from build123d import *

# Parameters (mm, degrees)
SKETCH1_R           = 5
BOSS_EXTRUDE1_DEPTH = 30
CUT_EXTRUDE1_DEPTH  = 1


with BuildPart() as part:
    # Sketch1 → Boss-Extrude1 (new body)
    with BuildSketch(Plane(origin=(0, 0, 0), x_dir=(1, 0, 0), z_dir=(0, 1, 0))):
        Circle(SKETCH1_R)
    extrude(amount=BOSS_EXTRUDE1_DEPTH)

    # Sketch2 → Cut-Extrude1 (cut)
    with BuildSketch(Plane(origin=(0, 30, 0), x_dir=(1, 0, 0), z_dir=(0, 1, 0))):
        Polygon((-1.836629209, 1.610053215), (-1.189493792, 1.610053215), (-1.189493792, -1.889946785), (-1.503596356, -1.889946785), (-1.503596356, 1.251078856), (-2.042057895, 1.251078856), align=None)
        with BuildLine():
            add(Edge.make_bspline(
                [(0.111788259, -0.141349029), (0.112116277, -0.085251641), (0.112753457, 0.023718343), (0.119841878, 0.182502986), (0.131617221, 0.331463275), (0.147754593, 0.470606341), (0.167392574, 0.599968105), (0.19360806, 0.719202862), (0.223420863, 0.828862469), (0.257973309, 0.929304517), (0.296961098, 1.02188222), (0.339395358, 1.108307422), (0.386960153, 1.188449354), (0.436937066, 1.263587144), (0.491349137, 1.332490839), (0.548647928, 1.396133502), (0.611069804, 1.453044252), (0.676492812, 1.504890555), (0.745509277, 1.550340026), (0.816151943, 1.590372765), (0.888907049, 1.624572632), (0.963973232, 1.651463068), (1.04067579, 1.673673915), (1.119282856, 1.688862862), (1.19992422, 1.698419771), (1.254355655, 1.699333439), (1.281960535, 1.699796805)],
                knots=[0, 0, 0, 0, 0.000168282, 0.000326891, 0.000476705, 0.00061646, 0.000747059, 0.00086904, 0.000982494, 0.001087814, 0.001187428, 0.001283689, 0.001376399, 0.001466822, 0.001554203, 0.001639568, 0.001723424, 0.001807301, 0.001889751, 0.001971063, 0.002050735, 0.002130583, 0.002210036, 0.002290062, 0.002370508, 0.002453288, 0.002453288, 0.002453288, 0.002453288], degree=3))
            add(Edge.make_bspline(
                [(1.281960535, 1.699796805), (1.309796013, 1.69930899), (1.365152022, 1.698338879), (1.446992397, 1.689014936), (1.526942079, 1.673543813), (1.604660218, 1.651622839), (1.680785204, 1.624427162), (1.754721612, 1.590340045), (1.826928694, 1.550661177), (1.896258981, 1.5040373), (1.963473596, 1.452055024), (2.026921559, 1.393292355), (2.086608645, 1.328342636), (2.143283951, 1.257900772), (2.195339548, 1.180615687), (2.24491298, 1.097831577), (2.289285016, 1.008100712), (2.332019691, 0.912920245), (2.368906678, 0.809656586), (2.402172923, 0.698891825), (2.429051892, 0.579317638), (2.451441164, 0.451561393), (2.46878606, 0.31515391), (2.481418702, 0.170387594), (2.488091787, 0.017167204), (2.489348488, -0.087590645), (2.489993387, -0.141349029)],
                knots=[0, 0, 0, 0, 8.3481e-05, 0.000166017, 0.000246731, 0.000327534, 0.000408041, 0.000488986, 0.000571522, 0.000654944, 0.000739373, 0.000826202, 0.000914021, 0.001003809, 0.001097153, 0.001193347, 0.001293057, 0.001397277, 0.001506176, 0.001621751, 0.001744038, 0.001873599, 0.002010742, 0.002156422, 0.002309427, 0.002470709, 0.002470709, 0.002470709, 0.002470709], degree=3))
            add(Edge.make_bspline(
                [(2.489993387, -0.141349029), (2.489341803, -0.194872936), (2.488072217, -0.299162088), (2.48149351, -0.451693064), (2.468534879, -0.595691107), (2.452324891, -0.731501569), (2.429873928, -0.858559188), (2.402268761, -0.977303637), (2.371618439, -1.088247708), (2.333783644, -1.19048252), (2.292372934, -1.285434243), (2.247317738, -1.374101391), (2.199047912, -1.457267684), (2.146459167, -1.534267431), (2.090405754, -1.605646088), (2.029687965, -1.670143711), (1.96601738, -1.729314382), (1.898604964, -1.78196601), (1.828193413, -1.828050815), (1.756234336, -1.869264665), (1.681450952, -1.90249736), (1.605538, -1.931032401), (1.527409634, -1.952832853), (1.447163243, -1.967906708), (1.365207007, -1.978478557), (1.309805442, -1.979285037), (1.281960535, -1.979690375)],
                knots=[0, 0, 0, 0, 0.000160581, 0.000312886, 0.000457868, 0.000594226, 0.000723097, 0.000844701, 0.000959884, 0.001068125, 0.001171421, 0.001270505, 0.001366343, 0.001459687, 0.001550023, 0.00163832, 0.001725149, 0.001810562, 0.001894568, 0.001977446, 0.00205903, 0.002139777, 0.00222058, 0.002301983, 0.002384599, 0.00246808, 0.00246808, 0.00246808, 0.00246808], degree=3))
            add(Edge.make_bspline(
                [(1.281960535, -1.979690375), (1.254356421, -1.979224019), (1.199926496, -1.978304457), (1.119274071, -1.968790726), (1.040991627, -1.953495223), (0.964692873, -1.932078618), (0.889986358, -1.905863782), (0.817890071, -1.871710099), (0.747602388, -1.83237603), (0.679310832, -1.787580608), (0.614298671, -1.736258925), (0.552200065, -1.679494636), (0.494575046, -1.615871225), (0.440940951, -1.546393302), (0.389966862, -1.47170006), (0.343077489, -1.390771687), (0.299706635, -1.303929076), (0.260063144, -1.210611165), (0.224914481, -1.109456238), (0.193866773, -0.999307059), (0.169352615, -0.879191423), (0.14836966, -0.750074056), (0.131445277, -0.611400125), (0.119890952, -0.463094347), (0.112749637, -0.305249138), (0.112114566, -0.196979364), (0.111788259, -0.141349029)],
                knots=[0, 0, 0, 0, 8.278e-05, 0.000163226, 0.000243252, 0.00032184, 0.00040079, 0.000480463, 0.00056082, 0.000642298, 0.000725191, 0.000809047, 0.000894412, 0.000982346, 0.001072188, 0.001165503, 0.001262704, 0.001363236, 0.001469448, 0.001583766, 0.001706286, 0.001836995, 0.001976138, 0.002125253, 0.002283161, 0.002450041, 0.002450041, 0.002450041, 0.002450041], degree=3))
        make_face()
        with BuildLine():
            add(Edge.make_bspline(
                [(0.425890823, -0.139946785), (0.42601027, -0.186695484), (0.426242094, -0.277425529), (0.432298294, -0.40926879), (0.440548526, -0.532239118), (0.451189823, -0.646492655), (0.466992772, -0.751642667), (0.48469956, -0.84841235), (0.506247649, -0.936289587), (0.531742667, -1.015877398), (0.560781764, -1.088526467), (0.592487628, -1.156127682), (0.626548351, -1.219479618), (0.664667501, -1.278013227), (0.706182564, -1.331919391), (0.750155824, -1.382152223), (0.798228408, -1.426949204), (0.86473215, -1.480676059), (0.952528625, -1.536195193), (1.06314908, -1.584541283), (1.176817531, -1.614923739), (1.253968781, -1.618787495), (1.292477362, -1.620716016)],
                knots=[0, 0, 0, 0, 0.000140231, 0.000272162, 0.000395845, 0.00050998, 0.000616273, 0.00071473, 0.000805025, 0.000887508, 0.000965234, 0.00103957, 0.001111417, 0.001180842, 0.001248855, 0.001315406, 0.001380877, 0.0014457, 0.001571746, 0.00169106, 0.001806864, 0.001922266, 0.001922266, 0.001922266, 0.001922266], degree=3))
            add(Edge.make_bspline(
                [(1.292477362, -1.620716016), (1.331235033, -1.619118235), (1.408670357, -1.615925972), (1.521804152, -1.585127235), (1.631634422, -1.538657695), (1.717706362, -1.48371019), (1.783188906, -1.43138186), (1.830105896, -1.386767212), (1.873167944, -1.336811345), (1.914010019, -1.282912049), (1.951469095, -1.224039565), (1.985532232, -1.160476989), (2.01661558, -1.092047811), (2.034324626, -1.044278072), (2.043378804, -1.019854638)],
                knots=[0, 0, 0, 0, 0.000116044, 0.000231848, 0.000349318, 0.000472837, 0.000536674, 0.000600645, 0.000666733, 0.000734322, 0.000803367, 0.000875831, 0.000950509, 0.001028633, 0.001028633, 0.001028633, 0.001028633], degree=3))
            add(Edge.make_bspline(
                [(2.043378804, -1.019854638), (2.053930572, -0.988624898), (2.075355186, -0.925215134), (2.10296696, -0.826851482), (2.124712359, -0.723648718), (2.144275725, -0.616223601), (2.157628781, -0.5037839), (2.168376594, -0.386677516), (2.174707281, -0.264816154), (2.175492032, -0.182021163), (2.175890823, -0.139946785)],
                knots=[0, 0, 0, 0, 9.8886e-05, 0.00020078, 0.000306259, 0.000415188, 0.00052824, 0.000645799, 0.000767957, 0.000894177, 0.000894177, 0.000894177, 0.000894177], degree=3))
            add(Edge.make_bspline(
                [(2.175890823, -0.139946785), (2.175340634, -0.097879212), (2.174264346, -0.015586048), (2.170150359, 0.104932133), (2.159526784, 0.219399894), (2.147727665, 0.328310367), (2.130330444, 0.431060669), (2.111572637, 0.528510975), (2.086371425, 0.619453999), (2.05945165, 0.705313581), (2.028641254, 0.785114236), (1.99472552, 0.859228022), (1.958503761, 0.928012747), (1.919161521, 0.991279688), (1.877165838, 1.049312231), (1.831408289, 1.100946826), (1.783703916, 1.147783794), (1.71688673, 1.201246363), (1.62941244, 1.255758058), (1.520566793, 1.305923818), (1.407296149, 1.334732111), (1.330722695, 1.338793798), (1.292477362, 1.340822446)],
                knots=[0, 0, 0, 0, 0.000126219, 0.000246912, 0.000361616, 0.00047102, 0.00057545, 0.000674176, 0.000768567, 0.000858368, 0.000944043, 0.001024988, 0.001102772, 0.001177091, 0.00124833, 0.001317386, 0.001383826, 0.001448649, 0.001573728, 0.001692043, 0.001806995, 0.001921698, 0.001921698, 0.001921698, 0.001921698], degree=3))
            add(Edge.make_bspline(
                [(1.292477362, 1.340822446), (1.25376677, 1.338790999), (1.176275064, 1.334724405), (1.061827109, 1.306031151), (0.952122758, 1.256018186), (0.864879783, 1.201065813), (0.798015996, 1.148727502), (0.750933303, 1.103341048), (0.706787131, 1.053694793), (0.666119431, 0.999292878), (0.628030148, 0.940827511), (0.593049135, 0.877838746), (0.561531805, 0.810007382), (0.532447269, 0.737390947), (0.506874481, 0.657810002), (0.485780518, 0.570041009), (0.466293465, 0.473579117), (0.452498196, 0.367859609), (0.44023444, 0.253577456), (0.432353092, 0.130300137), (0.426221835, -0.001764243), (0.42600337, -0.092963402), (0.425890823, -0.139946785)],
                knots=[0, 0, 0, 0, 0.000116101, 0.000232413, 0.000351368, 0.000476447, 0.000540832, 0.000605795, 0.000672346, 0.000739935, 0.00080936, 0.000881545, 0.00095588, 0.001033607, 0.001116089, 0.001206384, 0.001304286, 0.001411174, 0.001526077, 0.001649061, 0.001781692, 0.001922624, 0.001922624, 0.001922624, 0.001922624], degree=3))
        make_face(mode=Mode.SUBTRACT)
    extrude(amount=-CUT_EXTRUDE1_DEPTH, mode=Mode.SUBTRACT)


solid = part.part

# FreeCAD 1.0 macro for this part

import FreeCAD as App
import Part
import Sketcher

V = App.Vector

doc = App.newDocument("Part")
body = doc.addObject("PartDesign::Body", "Body")

# Sketch on XZ plane
sketch1 = body.newObject("Sketcher::SketchObject", "Sketch")
sketch1.AttachmentSupport = (doc.getObject("XZ_Plane"), [""])
sketch1.MapMode = "FlatFace"
sketch1.addGeometry(Part.Circle(V(0, 0, 0), V(0, 0, 1), 5), False)
sketch1.addConstraint(Sketcher.Constraint("Coincident", 0, 3, -1, 1))
sketch1.addConstraint(Sketcher.Constraint("Diameter", 0, 10.0))
pad1 = body.newObject("PartDesign::Pad", "Pad")
pad1.Profile = sketch1
pad1.Length = 30
pad1.Reversed = True

# Sketch on XZ plane
sketch2 = body.newObject("Sketcher::SketchObject", "Sketch001")
sketch2.AttachmentSupport = (doc.getObject("XZ_Plane"), [""])
sketch2.MapMode = "FlatFace"
sketch2.AttachmentOffset = App.Placement(V(0, 0, -30), App.Rotation())
sketch2.addGeometry(Part.LineSegment(V(-1.189494, -1.610053, 0), V(-1.836629, -1.610053, 0)), False)
sketch2.addGeometry(Part.LineSegment(V(-1.836629, -1.610053, 0), V(-2.042058, -1.251079, 0)), False)
sketch2.addGeometry(Part.LineSegment(V(-2.042058, -1.251079, 0), V(-1.503596, -1.251079, 0)), False)
sketch2.addGeometry(Part.LineSegment(V(-1.503596, -1.251079, 0), V(-1.503596, 1.889947, 0)), False)
sketch2.addGeometry(Part.LineSegment(V(-1.503596, 1.889947, 0), V(-1.189494, 1.889947, 0)), False)
sketch2.addGeometry(Part.LineSegment(V(-1.189494, 1.889947, 0), V(-1.189494, -1.610053, 0)), False)
sketch2.addGeometry(Part.BSplineCurve([V(0.111788, 0.141349, 0), V(0.112116, 0.085252, 0), V(0.112753, -0.023718, 0), V(0.119842, -0.182503, 0), V(0.131617, -0.331463, 0), V(0.147755, -0.470606, 0), V(0.167393, -0.599968, 0), V(0.193608, -0.719203, 0), V(0.223421, -0.828862, 0), V(0.257973, -0.929305, 0), V(0.296961, -1.021882, 0), V(0.339395, -1.108307, 0), V(0.38696, -1.188449, 0), V(0.436937, -1.263587, 0), V(0.491349, -1.332491, 0), V(0.548648, -1.396134, 0), V(0.61107, -1.453044, 0), V(0.676493, -1.504891, 0), V(0.745509, -1.55034, 0), V(0.816152, -1.590373, 0), V(0.888907, -1.624573, 0), V(0.963973, -1.651463, 0), V(1.040676, -1.673674, 0), V(1.119283, -1.688863, 0), V(1.199924, -1.69842, 0), V(1.254356, -1.699333, 0), V(1.281961, -1.699797, 0)], [4, 1, 1, 1, 1, 1, 1, 1, 1, 1, 1, 1, 1, 1, 1, 1, 1, 1, 1, 1, 1, 1, 1, 1, 4], [0, 0.000168282, 0.000326891, 0.000476705, 0.00061646, 0.000747059, 0.00086904, 0.000982494, 0.001087814, 0.001187428, 0.001283689, 0.001376399, 0.001466822, 0.001554203, 0.001639568, 0.001723424, 0.001807301, 0.001889751, 0.001971063, 0.002050735, 0.002130583, 0.002210036, 0.002290062, 0.002370508, 0.002453288], False, 3, [1, 1, 1, 1, 1, 1, 1, 1, 1, 1, 1, 1, 1, 1, 1, 1, 1, 1, 1, 1, 1, 1, 1, 1, 1, 1, 1], False), False)
sketch2.addGeometry(Part.BSplineCurve([V(1.281961, 1.97969, 0), V(1.254356, 1.979224, 0), V(1.199926, 1.978304, 0), V(1.119274, 1.968791, 0), V(1.040992, 1.953495, 0), V(0.964693, 1.932079, 0), V(0.889986, 1.905864, 0), V(0.81789, 1.87171, 0), V(0.747602, 1.832376, 0), V(0.679311, 1.787581, 0), V(0.614299, 1.736259, 0), V(0.5522, 1.679495, 0), V(0.494575, 1.615871, 0), V(0.440941, 1.546393, 0), V(0.389967, 1.4717, 0), V(0.343077, 1.390772, 0), V(0.299707, 1.303929, 0), V(0.260063, 1.210611, 0), V(0.224914, 1.109456, 0), V(0.193867, 0.999307, 0), V(0.169353, 0.879191, 0), V(0.14837, 0.750074, 0), V(0.131445, 0.6114, 0), V(0.119891, 0.463094, 0), V(0.11275, 0.305249, 0), V(0.112115, 0.196979, 0), V(0.111788, 0.141349, 0)], [4, 1, 1, 1, 1, 1, 1, 1, 1, 1, 1, 1, 1, 1, 1, 1, 1, 1, 1, 1, 1, 1, 1, 1, 4], [0, 0.00008278, 0.000163226, 0.000243252, 0.00032184, 0.00040079, 0.000480463, 0.00056082, 0.000642298, 0.000725191, 0.000809047, 0.000894412, 0.000982346, 0.001072188, 0.001165503, 0.001262704, 0.001363236, 0.001469448, 0.001583766, 0.001706286, 0.001836995, 0.001976138, 0.002125253, 0.002283161, 0.002450041], False, 3, [1, 1, 1, 1, 1, 1, 1, 1, 1, 1, 1, 1, 1, 1, 1, 1, 1, 1, 1, 1, 1, 1, 1, 1, 1, 1, 1], False), False)
sketch2.addGeometry(Part.BSplineCurve([V(2.489993, 0.141349, 0), V(2.489342, 0.194873, 0), V(2.488072, 0.299162, 0), V(2.481494, 0.451693, 0), V(2.468535, 0.595691, 0), V(2.452325, 0.731502, 0), V(2.429874, 0.858559, 0), V(2.402269, 0.977304, 0), V(2.371618, 1.088248, 0), V(2.333784, 1.190483, 0), V(2.292373, 1.285434, 0), V(2.247318, 1.374101, 0), V(2.199048, 1.457268, 0), V(2.146459, 1.534267, 0), V(2.090406, 1.605646, 0), V(2.029688, 1.670144, 0), V(1.966017, 1.729314, 0), V(1.898605, 1.781966, 0), V(1.828193, 1.828051, 0), V(1.756234, 1.869265, 0), V(1.681451, 1.902497, 0), V(1.605538, 1.931032, 0), V(1.52741, 1.952833, 0), V(1.447163, 1.967907, 0), V(1.365207, 1.978479, 0), V(1.309805, 1.979285, 0), V(1.281961, 1.97969, 0)], [4, 1, 1, 1, 1, 1, 1, 1, 1, 1, 1, 1, 1, 1, 1, 1, 1, 1, 1, 1, 1, 1, 1, 1, 4], [0, 0.000160581, 0.000312886, 0.000457868, 0.000594226, 0.000723097, 0.000844701, 0.000959884, 0.001068125, 0.001171421, 0.001270505, 0.001366343, 0.001459687, 0.001550023, 0.00163832, 0.001725149, 0.001810562, 0.001894568, 0.001977446, 0.00205903, 0.002139777, 0.00222058, 0.002301983, 0.002384599, 0.00246808], False, 3, [1, 1, 1, 1, 1, 1, 1, 1, 1, 1, 1, 1, 1, 1, 1, 1, 1, 1, 1, 1, 1, 1, 1, 1, 1, 1, 1], False), False)
sketch2.addGeometry(Part.BSplineCurve([V(1.281961, -1.699797, 0), V(1.309796, -1.699309, 0), V(1.365152, -1.698339, 0), V(1.446992, -1.689015, 0), V(1.526942, -1.673544, 0), V(1.60466, -1.651623, 0), V(1.680785, -1.624427, 0), V(1.754722, -1.59034, 0), V(1.826929, -1.550661, 0), V(1.896259, -1.504037, 0), V(1.963474, -1.452055, 0), V(2.026922, -1.393292, 0), V(2.086609, -1.328343, 0), V(2.143284, -1.257901, 0), V(2.19534, -1.180616, 0), V(2.244913, -1.097832, 0), V(2.289285, -1.008101, 0), V(2.33202, -0.91292, 0), V(2.368907, -0.809657, 0), V(2.402173, -0.698892, 0), V(2.429052, -0.579318, 0), V(2.451441, -0.451561, 0), V(2.468786, -0.315154, 0), V(2.481419, -0.170388, 0), V(2.488092, -0.017167, 0), V(2.489348, 0.087591, 0), V(2.489993, 0.141349, 0)], [4, 1, 1, 1, 1, 1, 1, 1, 1, 1, 1, 1, 1, 1, 1, 1, 1, 1, 1, 1, 1, 1, 1, 1, 4], [0, 0.000083481, 0.000166017, 0.000246731, 0.000327534, 0.000408041, 0.000488986, 0.000571522, 0.000654944, 0.000739373, 0.000826202, 0.000914021, 0.001003809, 0.001097153, 0.001193347, 0.001293057, 0.001397277, 0.001506176, 0.001621751, 0.001744038, 0.001873599, 0.002010742, 0.002156422, 0.002309427, 0.002470709], False, 3, [1, 1, 1, 1, 1, 1, 1, 1, 1, 1, 1, 1, 1, 1, 1, 1, 1, 1, 1, 1, 1, 1, 1, 1, 1, 1, 1], False), False)
sketch2.addGeometry(Part.BSplineCurve([V(1.292477, -1.340822, 0), V(1.253767, -1.338791, 0), V(1.176275, -1.334724, 0), V(1.061827, -1.306031, 0), V(0.952123, -1.256018, 0), V(0.86488, -1.201066, 0), V(0.798016, -1.148728, 0), V(0.750933, -1.103341, 0), V(0.706787, -1.053695, 0), V(0.666119, -0.999293, 0), V(0.62803, -0.940828, 0), V(0.593049, -0.877839, 0), V(0.561532, -0.810007, 0), V(0.532447, -0.737391, 0), V(0.506874, -0.65781, 0), V(0.485781, -0.570041, 0), V(0.466293, -0.473579, 0), V(0.452498, -0.36786, 0), V(0.440234, -0.253577, 0), V(0.432353, -0.1303, 0), V(0.426222, 0.001764, 0), V(0.426003, 0.092963, 0), V(0.425891, 0.139947, 0)], [4, 1, 1, 1, 1, 1, 1, 1, 1, 1, 1, 1, 1, 1, 1, 1, 1, 1, 1, 1, 4], [0, 0.000116101, 0.000232413, 0.000351368, 0.000476447, 0.000540832, 0.000605795, 0.000672346, 0.000739935, 0.00080936, 0.000881545, 0.00095588, 0.001033607, 0.001116089, 0.001206384, 0.001304286, 0.001411174, 0.001526077, 0.001649061, 0.001781692, 0.001922624], False, 3, [1, 1, 1, 1, 1, 1, 1, 1, 1, 1, 1, 1, 1, 1, 1, 1, 1, 1, 1, 1, 1, 1, 1], False), False)
sketch2.addGeometry(Part.BSplineCurve([V(2.175891, 0.139947, 0), V(2.175341, 0.097879, 0), V(2.174264, 0.015586, 0), V(2.17015, -0.104932, 0), V(2.159527, -0.2194, 0), V(2.147728, -0.32831, 0), V(2.13033, -0.431061, 0), V(2.111573, -0.528511, 0), V(2.086371, -0.619454, 0), V(2.059452, -0.705314, 0), V(2.028641, -0.785114, 0), V(1.994726, -0.859228, 0), V(1.958504, -0.928013, 0), V(1.919162, -0.99128, 0), V(1.877166, -1.049312, 0), V(1.831408, -1.100947, 0), V(1.783704, -1.147784, 0), V(1.716887, -1.201246, 0), V(1.629412, -1.255758, 0), V(1.520567, -1.305924, 0), V(1.407296, -1.334732, 0), V(1.330723, -1.338794, 0), V(1.292477, -1.340822, 0)], [4, 1, 1, 1, 1, 1, 1, 1, 1, 1, 1, 1, 1, 1, 1, 1, 1, 1, 1, 1, 4], [0, 0.000126219, 0.000246912, 0.000361616, 0.00047102, 0.00057545, 0.000674176, 0.000768567, 0.000858368, 0.000944043, 0.001024988, 0.001102772, 0.001177091, 0.00124833, 0.001317386, 0.001383826, 0.001448649, 0.001573728, 0.001692043, 0.001806995, 0.001921698], False, 3, [1, 1, 1, 1, 1, 1, 1, 1, 1, 1, 1, 1, 1, 1, 1, 1, 1, 1, 1, 1, 1, 1, 1], False), False)
sketch2.addGeometry(Part.BSplineCurve([V(2.043379, 1.019855, 0), V(2.053931, 0.988625, 0), V(2.075355, 0.925215, 0), V(2.102967, 0.826851, 0), V(2.124712, 0.723649, 0), V(2.144276, 0.616224, 0), V(2.157629, 0.503784, 0), V(2.168377, 0.386678, 0), V(2.174707, 0.264816, 0), V(2.175492, 0.182021, 0), V(2.175891, 0.139947, 0)], [4, 1, 1, 1, 1, 1, 1, 1, 4], [0, 0.000098886, 0.00020078, 0.000306259, 0.000415188, 0.00052824, 0.000645799, 0.000767957, 0.000894177], False, 3, [1, 1, 1, 1, 1, 1, 1, 1, 1, 1, 1], False), False)
sketch2.addGeometry(Part.BSplineCurve([V(1.292477, 1.620716, 0), V(1.331235, 1.619118, 0), V(1.40867, 1.615926, 0), V(1.521804, 1.585127, 0), V(1.631634, 1.538658, 0), V(1.717706, 1.48371, 0), V(1.783189, 1.431382, 0), V(1.830106, 1.386767, 0), V(1.873168, 1.336811, 0), V(1.91401, 1.282912, 0), V(1.951469, 1.22404, 0), V(1.985532, 1.160477, 0), V(2.016616, 1.092048, 0), V(2.034325, 1.044278, 0), V(2.043379, 1.019855, 0)], [4, 1, 1, 1, 1, 1, 1, 1, 1, 1, 1, 1, 4], [0, 0.000116044, 0.000231848, 0.000349318, 0.000472837, 0.000536674, 0.000600645, 0.000666733, 0.000734322, 0.000803367, 0.000875831, 0.000950509, 0.001028633], False, 3, [1, 1, 1, 1, 1, 1, 1, 1, 1, 1, 1, 1, 1, 1, 1], False), False)
sketch2.addGeometry(Part.BSplineCurve([V(0.425891, 0.139947, 0), V(0.42601, 0.186695, 0), V(0.426242, 0.277426, 0), V(0.432298, 0.409269, 0), V(0.440549, 0.532239, 0), V(0.45119, 0.646493, 0), V(0.466993, 0.751643, 0), V(0.4847, 0.848412, 0), V(0.506248, 0.93629, 0), V(0.531743, 1.015877, 0), V(0.560782, 1.088526, 0), V(0.592488, 1.156128, 0), V(0.626548, 1.21948, 0), V(0.664668, 1.278013, 0), V(0.706183, 1.331919, 0), V(0.750156, 1.382152, 0), V(0.798228, 1.426949, 0), V(0.864732, 1.480676, 0), V(0.952529, 1.536195, 0), V(1.063149, 1.584541, 0), V(1.176818, 1.614924, 0), V(1.253969, 1.618787, 0), V(1.292477, 1.620716, 0)], [4, 1, 1, 1, 1, 1, 1, 1, 1, 1, 1, 1, 1, 1, 1, 1, 1, 1, 1, 1, 4], [0, 0.000140231, 0.000272162, 0.000395845, 0.00050998, 0.000616273, 0.00071473, 0.000805025, 0.000887508, 0.000965234, 0.00103957, 0.001111417, 0.001180842, 0.001248855, 0.001315406, 0.001380877, 0.0014457, 0.001571746, 0.00169106, 0.001806864, 0.001922266], False, 3, [1, 1, 1, 1, 1, 1, 1, 1, 1, 1, 1, 1, 1, 1, 1, 1, 1, 1, 1, 1, 1, 1, 1], False), False)
sketch2.addConstraint(Sketcher.Constraint("Block", 6))
sketch2.addConstraint(Sketcher.Constraint("Block", 7))
sketch2.addConstraint(Sketcher.Constraint("Block", 8))
sketch2.addConstraint(Sketcher.Constraint("Block", 9))
sketch2.addConstraint(Sketcher.Constraint("Block", 10))
sketch2.addConstraint(Sketcher.Constraint("Block", 11))
sketch2.addConstraint(Sketcher.Constraint("Block", 12))
sketch2.addConstraint(Sketcher.Constraint("Block", 13))
sketch2.addConstraint(Sketcher.Constraint("Block", 14))
sketch2.addConstraint(Sketcher.Constraint("Coincident", 0, 2, 1, 1))
sketch2.addConstraint(Sketcher.Constraint("Coincident", 1, 2, 2, 1))
sketch2.addConstraint(Sketcher.Constraint("Coincident", 2, 2, 3, 1))
sketch2.addConstraint(Sketcher.Constraint("Coincident", 3, 2, 4, 1))
sketch2.addConstraint(Sketcher.Constraint("Coincident", 4, 2, 5, 1))
sketch2.addConstraint(Sketcher.Constraint("Coincident", 5, 2, 0, 1))
sketch2.addConstraint(Sketcher.Constraint("Horizontal", 0))
sketch2.addConstraint(Sketcher.Constraint("Horizontal", 2))
sketch2.addConstraint(Sketcher.Constraint("Vertical", 3))
sketch2.addConstraint(Sketcher.Constraint("Horizontal", 4))
sketch2.addConstraint(Sketcher.Constraint("Vertical", 5))
sketch2.addConstraint(Sketcher.Constraint("DistanceY", 5, 2, 5, 1, 3.5))
sketch2.addConstraint(Sketcher.Constraint("Distance", 1, 0.413598))
sketch2.addConstraint(Sketcher.Constraint("DistanceX", 2, 1, 2, 2, 0.538462))
sketch2.addConstraint(Sketcher.Constraint("DistanceX", 0, 2, 0, 1, 0.647135))
sketch2.addConstraint(Sketcher.Constraint("DistanceX", 4, 1, 4, 2, 0.314103))
sketch2.addConstraint(Sketcher.Constraint("DistanceX", 0, 2, -1, 1, 1.836629))
sketch2.addConstraint(Sketcher.Constraint("DistanceY", 1, 2, -1, 1, 1.251079))
pocket1 = body.newObject("PartDesign::Pocket", "Pocket")
pocket1.Profile = sketch2
pocket1.Length = 1
pocket1.Reversed = True

doc.recompute()
